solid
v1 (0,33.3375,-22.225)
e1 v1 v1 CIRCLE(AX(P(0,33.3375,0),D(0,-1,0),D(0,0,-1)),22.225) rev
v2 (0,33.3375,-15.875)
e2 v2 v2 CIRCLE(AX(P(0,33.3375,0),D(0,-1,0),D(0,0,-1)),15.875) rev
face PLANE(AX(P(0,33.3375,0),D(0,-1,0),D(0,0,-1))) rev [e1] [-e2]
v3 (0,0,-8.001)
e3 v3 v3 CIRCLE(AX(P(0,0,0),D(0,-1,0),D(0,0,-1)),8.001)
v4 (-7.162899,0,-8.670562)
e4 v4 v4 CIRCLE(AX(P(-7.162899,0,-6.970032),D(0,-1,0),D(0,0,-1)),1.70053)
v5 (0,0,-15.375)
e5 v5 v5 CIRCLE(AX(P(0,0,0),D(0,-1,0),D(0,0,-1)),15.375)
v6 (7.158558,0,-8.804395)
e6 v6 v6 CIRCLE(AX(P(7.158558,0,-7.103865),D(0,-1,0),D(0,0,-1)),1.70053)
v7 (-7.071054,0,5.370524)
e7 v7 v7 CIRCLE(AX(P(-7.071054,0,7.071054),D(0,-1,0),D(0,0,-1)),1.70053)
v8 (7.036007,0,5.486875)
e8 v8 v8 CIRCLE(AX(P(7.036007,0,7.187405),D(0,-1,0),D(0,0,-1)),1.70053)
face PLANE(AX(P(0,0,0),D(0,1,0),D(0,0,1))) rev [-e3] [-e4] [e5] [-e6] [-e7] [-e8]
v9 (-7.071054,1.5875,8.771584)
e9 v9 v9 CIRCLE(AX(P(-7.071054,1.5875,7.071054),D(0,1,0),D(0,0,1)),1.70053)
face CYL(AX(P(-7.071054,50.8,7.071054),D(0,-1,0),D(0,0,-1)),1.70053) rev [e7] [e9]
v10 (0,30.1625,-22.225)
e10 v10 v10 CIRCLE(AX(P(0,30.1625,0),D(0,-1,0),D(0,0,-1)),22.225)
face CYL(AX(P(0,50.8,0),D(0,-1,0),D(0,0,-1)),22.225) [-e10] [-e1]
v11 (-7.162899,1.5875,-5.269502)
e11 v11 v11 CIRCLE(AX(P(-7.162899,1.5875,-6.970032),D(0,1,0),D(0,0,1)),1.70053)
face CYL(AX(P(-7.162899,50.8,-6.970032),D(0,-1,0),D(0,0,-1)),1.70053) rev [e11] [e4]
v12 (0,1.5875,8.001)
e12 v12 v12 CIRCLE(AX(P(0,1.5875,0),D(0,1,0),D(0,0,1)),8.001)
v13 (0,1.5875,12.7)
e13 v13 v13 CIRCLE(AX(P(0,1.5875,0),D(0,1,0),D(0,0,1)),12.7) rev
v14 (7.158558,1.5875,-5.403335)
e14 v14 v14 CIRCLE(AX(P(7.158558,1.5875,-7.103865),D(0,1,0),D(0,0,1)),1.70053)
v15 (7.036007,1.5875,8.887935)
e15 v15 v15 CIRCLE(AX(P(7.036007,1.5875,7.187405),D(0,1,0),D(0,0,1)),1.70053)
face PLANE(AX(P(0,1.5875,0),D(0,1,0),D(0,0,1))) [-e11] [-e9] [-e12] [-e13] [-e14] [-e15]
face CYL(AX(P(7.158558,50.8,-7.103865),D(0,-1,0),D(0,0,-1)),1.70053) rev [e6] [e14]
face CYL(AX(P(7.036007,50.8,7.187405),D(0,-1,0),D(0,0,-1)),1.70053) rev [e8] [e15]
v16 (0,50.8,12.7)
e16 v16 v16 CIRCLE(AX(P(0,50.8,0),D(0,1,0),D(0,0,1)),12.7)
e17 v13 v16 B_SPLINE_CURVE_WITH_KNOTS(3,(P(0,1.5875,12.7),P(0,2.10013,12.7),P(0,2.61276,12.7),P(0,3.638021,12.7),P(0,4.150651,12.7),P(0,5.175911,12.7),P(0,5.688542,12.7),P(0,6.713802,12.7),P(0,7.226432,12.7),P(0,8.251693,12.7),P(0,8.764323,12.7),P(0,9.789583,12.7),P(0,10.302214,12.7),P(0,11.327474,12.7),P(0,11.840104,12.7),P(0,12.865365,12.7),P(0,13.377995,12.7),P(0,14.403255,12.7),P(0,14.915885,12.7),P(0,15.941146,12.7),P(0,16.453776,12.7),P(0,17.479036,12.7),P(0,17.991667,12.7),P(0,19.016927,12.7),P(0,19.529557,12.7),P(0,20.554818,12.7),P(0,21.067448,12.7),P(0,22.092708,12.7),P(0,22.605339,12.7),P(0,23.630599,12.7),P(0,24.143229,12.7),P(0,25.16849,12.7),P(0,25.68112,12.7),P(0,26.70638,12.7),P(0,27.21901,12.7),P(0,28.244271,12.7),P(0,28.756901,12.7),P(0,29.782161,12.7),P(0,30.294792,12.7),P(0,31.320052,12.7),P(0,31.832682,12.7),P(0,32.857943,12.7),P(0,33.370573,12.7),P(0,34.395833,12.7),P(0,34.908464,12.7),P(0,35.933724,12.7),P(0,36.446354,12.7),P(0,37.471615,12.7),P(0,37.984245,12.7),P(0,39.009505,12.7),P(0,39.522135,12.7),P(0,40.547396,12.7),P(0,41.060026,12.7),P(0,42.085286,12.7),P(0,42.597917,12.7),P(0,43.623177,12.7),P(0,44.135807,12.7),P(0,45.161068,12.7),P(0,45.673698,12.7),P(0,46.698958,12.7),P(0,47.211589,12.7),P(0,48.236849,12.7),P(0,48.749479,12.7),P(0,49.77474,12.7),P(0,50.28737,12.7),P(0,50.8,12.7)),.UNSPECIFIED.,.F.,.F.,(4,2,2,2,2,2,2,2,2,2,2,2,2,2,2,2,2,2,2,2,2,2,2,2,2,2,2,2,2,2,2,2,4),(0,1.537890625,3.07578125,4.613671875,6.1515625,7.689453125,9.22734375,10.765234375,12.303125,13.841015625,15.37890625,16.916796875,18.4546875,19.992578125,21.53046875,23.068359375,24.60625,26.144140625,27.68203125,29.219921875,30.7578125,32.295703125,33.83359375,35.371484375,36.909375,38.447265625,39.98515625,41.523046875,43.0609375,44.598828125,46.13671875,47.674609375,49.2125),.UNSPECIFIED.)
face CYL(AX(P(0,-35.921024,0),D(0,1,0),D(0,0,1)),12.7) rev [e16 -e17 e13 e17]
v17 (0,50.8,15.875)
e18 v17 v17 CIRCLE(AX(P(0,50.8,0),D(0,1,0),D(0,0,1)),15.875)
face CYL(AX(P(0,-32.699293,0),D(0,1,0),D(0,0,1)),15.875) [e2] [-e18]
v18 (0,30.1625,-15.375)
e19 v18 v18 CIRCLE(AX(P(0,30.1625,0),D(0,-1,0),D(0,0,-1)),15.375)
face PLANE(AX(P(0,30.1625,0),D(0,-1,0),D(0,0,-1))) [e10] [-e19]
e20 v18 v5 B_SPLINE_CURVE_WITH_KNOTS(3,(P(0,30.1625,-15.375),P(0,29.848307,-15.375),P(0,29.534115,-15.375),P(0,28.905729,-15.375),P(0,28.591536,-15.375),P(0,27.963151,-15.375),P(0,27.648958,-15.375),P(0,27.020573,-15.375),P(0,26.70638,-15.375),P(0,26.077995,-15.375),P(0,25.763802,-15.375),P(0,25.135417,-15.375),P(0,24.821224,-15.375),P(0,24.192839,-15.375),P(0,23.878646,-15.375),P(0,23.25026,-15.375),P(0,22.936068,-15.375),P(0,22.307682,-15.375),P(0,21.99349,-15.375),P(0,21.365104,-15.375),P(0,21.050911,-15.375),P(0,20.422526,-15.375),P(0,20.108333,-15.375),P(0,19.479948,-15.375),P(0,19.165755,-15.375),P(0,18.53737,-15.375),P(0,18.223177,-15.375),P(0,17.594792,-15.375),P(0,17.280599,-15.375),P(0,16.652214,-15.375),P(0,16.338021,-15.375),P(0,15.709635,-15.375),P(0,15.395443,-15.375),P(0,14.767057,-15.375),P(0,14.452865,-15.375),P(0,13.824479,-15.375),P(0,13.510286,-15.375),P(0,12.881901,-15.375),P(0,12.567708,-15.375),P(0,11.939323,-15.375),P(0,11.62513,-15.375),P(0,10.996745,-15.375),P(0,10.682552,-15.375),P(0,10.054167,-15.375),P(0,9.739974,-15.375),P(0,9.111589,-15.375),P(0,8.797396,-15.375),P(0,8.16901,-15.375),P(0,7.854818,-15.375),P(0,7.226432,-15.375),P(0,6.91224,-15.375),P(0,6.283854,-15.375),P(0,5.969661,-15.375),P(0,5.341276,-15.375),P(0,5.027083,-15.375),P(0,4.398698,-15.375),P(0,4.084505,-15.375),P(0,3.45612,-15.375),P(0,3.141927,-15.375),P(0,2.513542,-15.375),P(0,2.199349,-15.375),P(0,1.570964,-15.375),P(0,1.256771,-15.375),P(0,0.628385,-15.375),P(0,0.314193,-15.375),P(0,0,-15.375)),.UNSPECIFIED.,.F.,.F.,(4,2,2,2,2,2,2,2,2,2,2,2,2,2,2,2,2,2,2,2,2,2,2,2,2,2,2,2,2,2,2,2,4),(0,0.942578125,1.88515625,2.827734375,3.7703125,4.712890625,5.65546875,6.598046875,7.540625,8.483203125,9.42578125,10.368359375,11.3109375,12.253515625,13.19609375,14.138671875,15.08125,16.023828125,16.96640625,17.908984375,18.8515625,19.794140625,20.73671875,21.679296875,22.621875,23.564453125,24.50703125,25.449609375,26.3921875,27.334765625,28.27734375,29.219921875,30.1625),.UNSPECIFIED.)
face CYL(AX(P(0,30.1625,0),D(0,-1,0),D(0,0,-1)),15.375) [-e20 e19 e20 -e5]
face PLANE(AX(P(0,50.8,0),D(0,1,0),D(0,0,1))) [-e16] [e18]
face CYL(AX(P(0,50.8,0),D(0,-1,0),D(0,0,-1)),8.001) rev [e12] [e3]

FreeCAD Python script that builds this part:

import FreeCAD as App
import Part
import Sketcher

V = App.Vector
Q = App.Units.Quantity

doc = App.newDocument("Part")
body = doc.addObject("PartDesign::Body", "Body")

# Sketch on XZ plane
sketch1 = body.newObject("Sketcher::SketchObject", "Sketch")
sketch1.AttachmentSupport = (doc.getObject("XZ_Plane"), [""])
sketch1.MapMode = "FlatFace"
sketch1.addGeometry(Part.Circle(V(0, 0, 0), V(0, 0, 1), 22), False)
sketch1.addConstraint(Sketcher.Constraint("Coincident", 0, 3, -1, 1))
sketch1.addConstraint(Sketcher.Constraint("Diameter", 0, Q("1.75 in")))
pad1 = body.newObject("PartDesign::Pad", "Pad")
pad1.Profile = sketch1
pad1.Length = Q("2 in")
pad1.Reversed = True

# Sketch on XZ plane
sketch2 = body.newObject("Sketcher::SketchObject", "Sketch001")
sketch2.AttachmentSupport = (doc.getObject("XZ_Plane"), [""])
sketch2.MapMode = "FlatFace"
sketch2.addGeometry(Part.Circle(V(0, 0, 0), V(0, 0, 1), 22), False)
sketch2.addGeometry(Part.Circle(V(0, 0, 0), V(0, 0, 1), 15), False)
sketch2.addConstraint(Sketcher.Constraint("Coincident", 0, 3, -1, 1))
sketch2.addConstraint(Sketcher.Constraint("Coincident", 1, 3, -1, 1))
sketch2.addConstraint(Sketcher.Constraint("Diameter", 0, Q("1.75 in")))
sketch2.addConstraint(Sketcher.Constraint("Diameter", 1, Q("30.75 mm")))
pocket1 = body.newObject("PartDesign::Pocket", "Pocket")
pocket1.Profile = sketch2
pocket1.Length = Q("1.1875 in")

# Sketch on XZ plane
sketch3 = body.newObject("Sketcher::SketchObject", "Sketch002")
sketch3.AttachmentSupport = (doc.getObject("XZ_Plane"), [""])
sketch3.MapMode = "FlatFace"
sketch3.AttachmentOffset = App.Placement(V(0, 0, -2 * 25.4), App.Rotation())
sketch3.addGeometry(Part.Circle(V(0, 0, 0), V(0, 0, 1), 13), False)
sketch3.addConstraint(Sketcher.Constraint("Coincident", 0, 3, -1, 1))
sketch3.addConstraint(Sketcher.Constraint("Diameter", 0, Q("1 in")))
pocket2 = body.newObject("PartDesign::Pocket", "Pocket001")
pocket2.Profile = sketch3
pocket2.Length = Q("1.9375 in")
pocket2.Reversed = True

# Sketch on XZ plane
sketch4 = body.newObject("Sketcher::SketchObject", "Sketch003")
sketch4.AttachmentSupport = (doc.getObject("XZ_Plane"), [""])
sketch4.MapMode = "FlatFace"
sketch4.AttachmentOffset = App.Placement(V(0, 0, -1.3125 * 25.4), App.Rotation())
sketch4.addGeometry(Part.Circle(V(0, 0, 0), V(0, 0, 1), 22), False)
sketch4.addGeometry(Part.Circle(V(0, 0, 0), V(0, 0, 1), 16), False)
sketch4.addConstraint(Sketcher.Constraint("Coincident", 0, 3, -1, 1))
sketch4.addConstraint(Sketcher.Constraint("Coincident", 1, 3, -1, 1))
sketch4.addConstraint(Sketcher.Constraint("Diameter", 0, Q("1.75 in")))
sketch4.addConstraint(Sketcher.Constraint("Diameter", 1, Q("1.25 in")))
pocket3 = body.newObject("PartDesign::Pocket", "Pocket002")
pocket3.Profile = sketch4
pocket3.Length = Q("0.6875 in")

# Sketch on XZ plane
sketch5 = body.newObject("Sketcher::SketchObject", "Sketch004")
sketch5.AttachmentSupport = (doc.getObject("XZ_Plane"), [""])
sketch5.MapMode = "FlatFace"
sketch5.addGeometry(Part.Circle(V(0, 0, 0), V(0, 0, 1), 8), False)
sketch5.addGeometry(Part.Circle(V(-7.1, 7.1, 0), V(0, 0, 1), 1.7), False)
sketch5.addGeometry(Part.Circle(V(-7.2, -7, 0), V(0, 0, 1), 1.7), False)
sketch5.addGeometry(Part.Circle(V(7.2, -7.1, 0), V(0, 0, 1), 1.7), False)
sketch5.addGeometry(Part.Circle(V(7, 7.2, 0), V(0, 0, 1), 1.7), False)
sketch5.addConstraint(Sketcher.Constraint("Coincident", 0, 3, -1, 1))
sketch5.addConstraint(Sketcher.Constraint("Equal", 1, 2))
sketch5.addConstraint(Sketcher.Constraint("Equal", 2, 3))
sketch5.addConstraint(Sketcher.Constraint("Equal", 3, 4))
sketch5.addConstraint(Sketcher.Constraint("Diameter", 0, Q("0.63 in")))
sketch5.addConstraint(Sketcher.Constraint("Diameter", 1, Q("0.1339 in")))
sketch5.addConstraint(Sketcher.Constraint("DistanceX", 2, 3, -1, 1, Q("7.162899 mm")))
sketch5.addConstraint(Sketcher.Constraint("DistanceY", 2, 3, -1, 1, Q("6.970032 mm")))
sketch5.addConstraint(Sketcher.Constraint("DistanceX", 1, 3, 3, 3, Q("14.229612 mm")))
sketch5.addConstraint(Sketcher.Constraint("DistanceY", 3, 3, 1, 3, Q("14.174918 mm")))
sketch5.addConstraint(Sketcher.Constraint("DistanceX", 1, 3, 4, 3, Q("14.10706 mm")))
sketch5.addConstraint(Sketcher.Constraint("DistanceY", 1, 3, 4, 3, Q("0.116351 mm")))
sketch5.addConstraint(Sketcher.Constraint("DistanceX", 1, 3, -1, 1, Q("7.071054 mm")))
sketch5.addConstraint(Sketcher.Constraint("DistanceY", -1, 1, 1, 3, Q("7.071054 mm")))
pocket4 = body.newObject("PartDesign::Pocket", "Pocket003")
pocket4.Profile = sketch5
pocket4.Type = "ThroughAll"

doc.recompute()
